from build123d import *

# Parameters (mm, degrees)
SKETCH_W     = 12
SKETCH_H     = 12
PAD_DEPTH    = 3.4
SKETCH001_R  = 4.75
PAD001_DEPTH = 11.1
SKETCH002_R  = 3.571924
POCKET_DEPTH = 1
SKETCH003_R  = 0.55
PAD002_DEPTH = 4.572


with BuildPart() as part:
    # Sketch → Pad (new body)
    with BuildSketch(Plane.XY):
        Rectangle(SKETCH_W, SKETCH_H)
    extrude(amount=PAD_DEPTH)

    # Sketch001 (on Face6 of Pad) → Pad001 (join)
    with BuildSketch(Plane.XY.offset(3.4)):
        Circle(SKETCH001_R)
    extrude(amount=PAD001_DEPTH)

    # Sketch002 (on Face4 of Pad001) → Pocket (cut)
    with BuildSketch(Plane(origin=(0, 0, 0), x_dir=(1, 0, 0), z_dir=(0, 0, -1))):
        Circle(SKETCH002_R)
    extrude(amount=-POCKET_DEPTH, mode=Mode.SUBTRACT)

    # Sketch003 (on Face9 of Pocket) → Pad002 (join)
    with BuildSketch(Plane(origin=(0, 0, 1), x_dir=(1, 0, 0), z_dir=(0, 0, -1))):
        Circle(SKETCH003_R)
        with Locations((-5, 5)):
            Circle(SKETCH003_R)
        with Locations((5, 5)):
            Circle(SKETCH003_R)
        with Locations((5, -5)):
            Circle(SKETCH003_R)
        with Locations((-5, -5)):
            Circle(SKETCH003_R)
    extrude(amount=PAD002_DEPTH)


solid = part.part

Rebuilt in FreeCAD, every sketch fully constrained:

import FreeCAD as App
import Part
import Sketcher

V = App.Vector
Q = App.Units.Quantity

doc = App.newDocument("Part")
body = doc.addObject("PartDesign::Body", "Body")

sketch1 = body.newObject("Sketcher::SketchObject", "Sketch")
sketch1.AttachmentSupport = (doc.getObject("XY_Plane"), [""])
sketch1.MapMode = "FlatFace"
sketch1.addGeometry([
    Part.LineSegment(V(-6, 6, 0), V(-6, -6, 0)),
    Part.LineSegment(V(-6, -6, 0), V(6, -6, 0)),
    Part.LineSegment(V(6, -6, 0), V(6, 6, 0)),
    Part.LineSegment(V(6, 6, 0), V(-6, 6, 0)),
], False)
sketch1.addConstraint([
    Sketcher.Constraint("Coincident", 0, 2, 1, 1),
    Sketcher.Constraint("Coincident", 1, 2, 2, 1),
    Sketcher.Constraint("Coincident", 2, 2, 3, 1),
    Sketcher.Constraint("Coincident", 3, 2, 0, 1),
    Sketcher.Constraint("Vertical", 0),
    Sketcher.Constraint("Horizontal", 1),
    Sketcher.Constraint("Vertical", 2),
    Sketcher.Constraint("Horizontal", 3),
    Sketcher.Constraint("Symmetric", 0, 2, 2, 2, -1, 1),
    Sketcher.Constraint("Equal", 3, 0),
    Sketcher.Constraint("DistanceX", 1, 1, 1, 2, Q("12 mm")),
])
pad1 = body.newObject("PartDesign::Pad", "Pad")
pad1.Profile = sketch1
pad1.Length = 3.4

sketch2 = body.newObject("Sketcher::SketchObject", "Sketch001")
sketch2.AttachmentSupport = (doc.getObject("XY_Plane"), [""])
sketch2.MapMode = "FlatFace"
sketch2.AttachmentOffset = App.Placement(V(0, 0, 3.4), App.Rotation())
sketch2.addGeometry(Part.Circle(V(0, 0, 0), V(0, 0, 1), 4.75), False)
sketch2.addConstraint([
    Sketcher.Constraint("Coincident", 0, 3, -1, 1),
    Sketcher.Constraint("Diameter", 0, Q("9.5 mm")),
])
pad2 = body.newObject("PartDesign::Pad", "Pad001")
pad2.Profile = sketch2
pad2.Length = 11.1

sketch3 = body.newObject("Sketcher::SketchObject", "Sketch002")
sketch3.AttachmentSupport = (doc.getObject("XY_Plane"), [""])
sketch3.MapMode = "FlatFace"
sketch3.addGeometry(Part.Circle(V(0, 0, 0), V(0, 0, 1), 3.571924), False)
sketch3.addConstraint([
    Sketcher.Constraint("Coincident", 0, 3, -1, 1),
    Sketcher.Constraint("Diameter", 0, Q("7.143848 mm")),
])
pocket1 = body.newObject("PartDesign::Pocket", "Pocket")
pocket1.Profile = sketch3
pocket1.Length = 1
pocket1.Reversed = True

sketch4 = body.newObject("Sketcher::SketchObject", "Sketch003")
sketch4.AttachmentSupport = (doc.getObject("XY_Plane"), [""])
sketch4.MapMode = "FlatFace"
sketch4.AttachmentOffset = App.Placement(V(0, 0, 1), App.Rotation())
sketch4.addGeometry([
    Part.Circle(V(0, 0, 0), V(0, 0, 1), 0.55),
    Part.Circle(V(-5, -5, 0), V(0, 0, 1), 0.55),
    Part.Circle(V(5, -5, 0), V(0, 0, 1), 0.55),
    Part.Circle(V(5, 5, 0), V(0, 0, 1), 0.55),
    Part.Circle(V(-5, 5, 0), V(0, 0, 1), 0.55),
], False)
sketch4.addConstraint([
    Sketcher.Constraint("Coincident", 0, 3, -1, 1),
    Sketcher.Constraint("Equal", 0, 1),
    Sketcher.Constraint("Equal", 1, 2),
    Sketcher.Constraint("Equal", 2, 3),
    Sketcher.Constraint("Equal", 3, 4),
    Sketcher.Constraint("Symmetric", 1, 3, 3, 3, -1, 1),
    Sketcher.Constraint("Symmetric", 2, 3, 4, 3, -1, 1),
    Sketcher.Constraint("Symmetric", 1, 3, 2, 3, -2),
    Sketcher.Constraint("Diameter", 0, Q("1.1 mm")),
    Sketcher.Constraint("DistanceX", 1, 3, -1, 1, Q("5 mm")),
    Sketcher.Constraint("DistanceY", 1, 3, -1, 1, Q("5 mm")),
])
pad3 = body.newObject("PartDesign::Pad", "Pad002")
pad3.Profile = sketch4
pad3.Length = 4.572
pad3.Reversed = True

doc.recompute()
